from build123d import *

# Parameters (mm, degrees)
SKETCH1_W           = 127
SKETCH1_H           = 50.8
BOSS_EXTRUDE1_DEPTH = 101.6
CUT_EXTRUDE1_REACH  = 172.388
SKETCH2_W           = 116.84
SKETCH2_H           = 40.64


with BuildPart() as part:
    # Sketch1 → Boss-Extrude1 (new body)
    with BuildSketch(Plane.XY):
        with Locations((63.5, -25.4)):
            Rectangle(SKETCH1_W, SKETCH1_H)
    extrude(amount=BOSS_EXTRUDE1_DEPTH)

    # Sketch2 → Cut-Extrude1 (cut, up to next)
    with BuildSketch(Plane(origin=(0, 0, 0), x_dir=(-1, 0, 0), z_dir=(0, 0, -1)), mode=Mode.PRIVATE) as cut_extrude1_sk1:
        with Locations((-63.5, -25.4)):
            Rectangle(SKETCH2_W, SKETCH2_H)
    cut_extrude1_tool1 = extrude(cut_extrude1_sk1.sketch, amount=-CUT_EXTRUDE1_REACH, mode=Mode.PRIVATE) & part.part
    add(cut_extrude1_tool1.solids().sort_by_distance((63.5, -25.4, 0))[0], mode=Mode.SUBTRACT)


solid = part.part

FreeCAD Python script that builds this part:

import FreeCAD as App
import Part
import Sketcher
Q = App.Units.Quantity

doc = App.newDocument("Part")
body = doc.addObject("PartDesign::Body", "Body")

sketch1 = doc.addObject("Sketcher::SketchObject", "Sketch")
body.addObject(sketch1)
sketch1.AttachmentSupport = (doc.XY_Plane, [""])
sketch1.MapMode = "FlatFace"
sketch1.addGeometry([
    Part.LineSegment(App.Vector(0, 0, 0), App.Vector(0, -51, 0)),
    Part.LineSegment(App.Vector(0, -51, 0), App.Vector(127, -51, 0)),
    Part.LineSegment(App.Vector(127, -51, 0), App.Vector(127, 0, 0)),
    Part.LineSegment(App.Vector(127, 0, 0), App.Vector(0, 0, 0)),
], False)
sketch1.addConstraint([
    Sketcher.Constraint("Coincident", 0, 2, 1, 1),
    Sketcher.Constraint("Coincident", 1, 2, 2, 1),
    Sketcher.Constraint("Coincident", 2, 2, 3, 1),
    Sketcher.Constraint("Coincident", 3, 2, 0, 1),
    Sketcher.Constraint("Vertical", 0),
    Sketcher.Constraint("Horizontal", 1),
    Sketcher.Constraint("Vertical", 2),
    Sketcher.Constraint("Horizontal", 3),
    Sketcher.Constraint("Coincident", 3, 2, -1, 1),
    Sketcher.Constraint("DistanceX", 1, 1, 1, 2, Q("5 in")),
    Sketcher.Constraint("DistanceY", 0, 2, 0, 1, Q("2 in")),
])
pad1 = doc.addObject("PartDesign::Pad", "Pad")
body.addObject(pad1)
pad1.Profile = sketch1
pad1.Length = Q("4 in")

sketch2 = doc.addObject("Sketcher::SketchObject", "Sketch001")
body.addObject(sketch2)
sketch2.AttachmentSupport = (doc.XY_Plane, [""])
sketch2.MapMode = "FlatFace"
sketch2.addGeometry([
    Part.LineSegment(App.Vector(122, -5, 0), App.Vector(122, -46, 0)),
    Part.LineSegment(App.Vector(122, -46, 0), App.Vector(5, -46, 0)),
    Part.LineSegment(App.Vector(5, -46, 0), App.Vector(5, -5, 0)),
    Part.LineSegment(App.Vector(5, -5, 0), App.Vector(122, -5, 0)),
], False)
sketch2.addConstraint([
    Sketcher.Constraint("Coincident", 0, 2, 1, 1),
    Sketcher.Constraint("Coincident", 1, 2, 2, 1),
    Sketcher.Constraint("Coincident", 2, 2, 3, 1),
    Sketcher.Constraint("Coincident", 3, 2, 0, 1),
    Sketcher.Constraint("Vertical", 0),
    Sketcher.Constraint("Horizontal", 1),
    Sketcher.Constraint("Vertical", 2),
    Sketcher.Constraint("Horizontal", 3),
    Sketcher.Constraint("DistanceX", 1, 2, 1, 1, Q("4.6 in")),
    Sketcher.Constraint("DistanceY", 0, 2, 0, 1, Q("1.6 in")),
    Sketcher.Constraint("DistanceX", -1, 1, 0, 2, Q("4.8 in")),
    Sketcher.Constraint("DistanceY", 0, 2, -1, 1, Q("1.8 in")),
])
pocket1 = doc.addObject("PartDesign::Pocket", "Pocket")
body.addObject(pocket1)
pocket1.Profile = sketch2
pocket1.Type = "UpToFirst"
pocket1.Reversed = True

doc.recompute()
